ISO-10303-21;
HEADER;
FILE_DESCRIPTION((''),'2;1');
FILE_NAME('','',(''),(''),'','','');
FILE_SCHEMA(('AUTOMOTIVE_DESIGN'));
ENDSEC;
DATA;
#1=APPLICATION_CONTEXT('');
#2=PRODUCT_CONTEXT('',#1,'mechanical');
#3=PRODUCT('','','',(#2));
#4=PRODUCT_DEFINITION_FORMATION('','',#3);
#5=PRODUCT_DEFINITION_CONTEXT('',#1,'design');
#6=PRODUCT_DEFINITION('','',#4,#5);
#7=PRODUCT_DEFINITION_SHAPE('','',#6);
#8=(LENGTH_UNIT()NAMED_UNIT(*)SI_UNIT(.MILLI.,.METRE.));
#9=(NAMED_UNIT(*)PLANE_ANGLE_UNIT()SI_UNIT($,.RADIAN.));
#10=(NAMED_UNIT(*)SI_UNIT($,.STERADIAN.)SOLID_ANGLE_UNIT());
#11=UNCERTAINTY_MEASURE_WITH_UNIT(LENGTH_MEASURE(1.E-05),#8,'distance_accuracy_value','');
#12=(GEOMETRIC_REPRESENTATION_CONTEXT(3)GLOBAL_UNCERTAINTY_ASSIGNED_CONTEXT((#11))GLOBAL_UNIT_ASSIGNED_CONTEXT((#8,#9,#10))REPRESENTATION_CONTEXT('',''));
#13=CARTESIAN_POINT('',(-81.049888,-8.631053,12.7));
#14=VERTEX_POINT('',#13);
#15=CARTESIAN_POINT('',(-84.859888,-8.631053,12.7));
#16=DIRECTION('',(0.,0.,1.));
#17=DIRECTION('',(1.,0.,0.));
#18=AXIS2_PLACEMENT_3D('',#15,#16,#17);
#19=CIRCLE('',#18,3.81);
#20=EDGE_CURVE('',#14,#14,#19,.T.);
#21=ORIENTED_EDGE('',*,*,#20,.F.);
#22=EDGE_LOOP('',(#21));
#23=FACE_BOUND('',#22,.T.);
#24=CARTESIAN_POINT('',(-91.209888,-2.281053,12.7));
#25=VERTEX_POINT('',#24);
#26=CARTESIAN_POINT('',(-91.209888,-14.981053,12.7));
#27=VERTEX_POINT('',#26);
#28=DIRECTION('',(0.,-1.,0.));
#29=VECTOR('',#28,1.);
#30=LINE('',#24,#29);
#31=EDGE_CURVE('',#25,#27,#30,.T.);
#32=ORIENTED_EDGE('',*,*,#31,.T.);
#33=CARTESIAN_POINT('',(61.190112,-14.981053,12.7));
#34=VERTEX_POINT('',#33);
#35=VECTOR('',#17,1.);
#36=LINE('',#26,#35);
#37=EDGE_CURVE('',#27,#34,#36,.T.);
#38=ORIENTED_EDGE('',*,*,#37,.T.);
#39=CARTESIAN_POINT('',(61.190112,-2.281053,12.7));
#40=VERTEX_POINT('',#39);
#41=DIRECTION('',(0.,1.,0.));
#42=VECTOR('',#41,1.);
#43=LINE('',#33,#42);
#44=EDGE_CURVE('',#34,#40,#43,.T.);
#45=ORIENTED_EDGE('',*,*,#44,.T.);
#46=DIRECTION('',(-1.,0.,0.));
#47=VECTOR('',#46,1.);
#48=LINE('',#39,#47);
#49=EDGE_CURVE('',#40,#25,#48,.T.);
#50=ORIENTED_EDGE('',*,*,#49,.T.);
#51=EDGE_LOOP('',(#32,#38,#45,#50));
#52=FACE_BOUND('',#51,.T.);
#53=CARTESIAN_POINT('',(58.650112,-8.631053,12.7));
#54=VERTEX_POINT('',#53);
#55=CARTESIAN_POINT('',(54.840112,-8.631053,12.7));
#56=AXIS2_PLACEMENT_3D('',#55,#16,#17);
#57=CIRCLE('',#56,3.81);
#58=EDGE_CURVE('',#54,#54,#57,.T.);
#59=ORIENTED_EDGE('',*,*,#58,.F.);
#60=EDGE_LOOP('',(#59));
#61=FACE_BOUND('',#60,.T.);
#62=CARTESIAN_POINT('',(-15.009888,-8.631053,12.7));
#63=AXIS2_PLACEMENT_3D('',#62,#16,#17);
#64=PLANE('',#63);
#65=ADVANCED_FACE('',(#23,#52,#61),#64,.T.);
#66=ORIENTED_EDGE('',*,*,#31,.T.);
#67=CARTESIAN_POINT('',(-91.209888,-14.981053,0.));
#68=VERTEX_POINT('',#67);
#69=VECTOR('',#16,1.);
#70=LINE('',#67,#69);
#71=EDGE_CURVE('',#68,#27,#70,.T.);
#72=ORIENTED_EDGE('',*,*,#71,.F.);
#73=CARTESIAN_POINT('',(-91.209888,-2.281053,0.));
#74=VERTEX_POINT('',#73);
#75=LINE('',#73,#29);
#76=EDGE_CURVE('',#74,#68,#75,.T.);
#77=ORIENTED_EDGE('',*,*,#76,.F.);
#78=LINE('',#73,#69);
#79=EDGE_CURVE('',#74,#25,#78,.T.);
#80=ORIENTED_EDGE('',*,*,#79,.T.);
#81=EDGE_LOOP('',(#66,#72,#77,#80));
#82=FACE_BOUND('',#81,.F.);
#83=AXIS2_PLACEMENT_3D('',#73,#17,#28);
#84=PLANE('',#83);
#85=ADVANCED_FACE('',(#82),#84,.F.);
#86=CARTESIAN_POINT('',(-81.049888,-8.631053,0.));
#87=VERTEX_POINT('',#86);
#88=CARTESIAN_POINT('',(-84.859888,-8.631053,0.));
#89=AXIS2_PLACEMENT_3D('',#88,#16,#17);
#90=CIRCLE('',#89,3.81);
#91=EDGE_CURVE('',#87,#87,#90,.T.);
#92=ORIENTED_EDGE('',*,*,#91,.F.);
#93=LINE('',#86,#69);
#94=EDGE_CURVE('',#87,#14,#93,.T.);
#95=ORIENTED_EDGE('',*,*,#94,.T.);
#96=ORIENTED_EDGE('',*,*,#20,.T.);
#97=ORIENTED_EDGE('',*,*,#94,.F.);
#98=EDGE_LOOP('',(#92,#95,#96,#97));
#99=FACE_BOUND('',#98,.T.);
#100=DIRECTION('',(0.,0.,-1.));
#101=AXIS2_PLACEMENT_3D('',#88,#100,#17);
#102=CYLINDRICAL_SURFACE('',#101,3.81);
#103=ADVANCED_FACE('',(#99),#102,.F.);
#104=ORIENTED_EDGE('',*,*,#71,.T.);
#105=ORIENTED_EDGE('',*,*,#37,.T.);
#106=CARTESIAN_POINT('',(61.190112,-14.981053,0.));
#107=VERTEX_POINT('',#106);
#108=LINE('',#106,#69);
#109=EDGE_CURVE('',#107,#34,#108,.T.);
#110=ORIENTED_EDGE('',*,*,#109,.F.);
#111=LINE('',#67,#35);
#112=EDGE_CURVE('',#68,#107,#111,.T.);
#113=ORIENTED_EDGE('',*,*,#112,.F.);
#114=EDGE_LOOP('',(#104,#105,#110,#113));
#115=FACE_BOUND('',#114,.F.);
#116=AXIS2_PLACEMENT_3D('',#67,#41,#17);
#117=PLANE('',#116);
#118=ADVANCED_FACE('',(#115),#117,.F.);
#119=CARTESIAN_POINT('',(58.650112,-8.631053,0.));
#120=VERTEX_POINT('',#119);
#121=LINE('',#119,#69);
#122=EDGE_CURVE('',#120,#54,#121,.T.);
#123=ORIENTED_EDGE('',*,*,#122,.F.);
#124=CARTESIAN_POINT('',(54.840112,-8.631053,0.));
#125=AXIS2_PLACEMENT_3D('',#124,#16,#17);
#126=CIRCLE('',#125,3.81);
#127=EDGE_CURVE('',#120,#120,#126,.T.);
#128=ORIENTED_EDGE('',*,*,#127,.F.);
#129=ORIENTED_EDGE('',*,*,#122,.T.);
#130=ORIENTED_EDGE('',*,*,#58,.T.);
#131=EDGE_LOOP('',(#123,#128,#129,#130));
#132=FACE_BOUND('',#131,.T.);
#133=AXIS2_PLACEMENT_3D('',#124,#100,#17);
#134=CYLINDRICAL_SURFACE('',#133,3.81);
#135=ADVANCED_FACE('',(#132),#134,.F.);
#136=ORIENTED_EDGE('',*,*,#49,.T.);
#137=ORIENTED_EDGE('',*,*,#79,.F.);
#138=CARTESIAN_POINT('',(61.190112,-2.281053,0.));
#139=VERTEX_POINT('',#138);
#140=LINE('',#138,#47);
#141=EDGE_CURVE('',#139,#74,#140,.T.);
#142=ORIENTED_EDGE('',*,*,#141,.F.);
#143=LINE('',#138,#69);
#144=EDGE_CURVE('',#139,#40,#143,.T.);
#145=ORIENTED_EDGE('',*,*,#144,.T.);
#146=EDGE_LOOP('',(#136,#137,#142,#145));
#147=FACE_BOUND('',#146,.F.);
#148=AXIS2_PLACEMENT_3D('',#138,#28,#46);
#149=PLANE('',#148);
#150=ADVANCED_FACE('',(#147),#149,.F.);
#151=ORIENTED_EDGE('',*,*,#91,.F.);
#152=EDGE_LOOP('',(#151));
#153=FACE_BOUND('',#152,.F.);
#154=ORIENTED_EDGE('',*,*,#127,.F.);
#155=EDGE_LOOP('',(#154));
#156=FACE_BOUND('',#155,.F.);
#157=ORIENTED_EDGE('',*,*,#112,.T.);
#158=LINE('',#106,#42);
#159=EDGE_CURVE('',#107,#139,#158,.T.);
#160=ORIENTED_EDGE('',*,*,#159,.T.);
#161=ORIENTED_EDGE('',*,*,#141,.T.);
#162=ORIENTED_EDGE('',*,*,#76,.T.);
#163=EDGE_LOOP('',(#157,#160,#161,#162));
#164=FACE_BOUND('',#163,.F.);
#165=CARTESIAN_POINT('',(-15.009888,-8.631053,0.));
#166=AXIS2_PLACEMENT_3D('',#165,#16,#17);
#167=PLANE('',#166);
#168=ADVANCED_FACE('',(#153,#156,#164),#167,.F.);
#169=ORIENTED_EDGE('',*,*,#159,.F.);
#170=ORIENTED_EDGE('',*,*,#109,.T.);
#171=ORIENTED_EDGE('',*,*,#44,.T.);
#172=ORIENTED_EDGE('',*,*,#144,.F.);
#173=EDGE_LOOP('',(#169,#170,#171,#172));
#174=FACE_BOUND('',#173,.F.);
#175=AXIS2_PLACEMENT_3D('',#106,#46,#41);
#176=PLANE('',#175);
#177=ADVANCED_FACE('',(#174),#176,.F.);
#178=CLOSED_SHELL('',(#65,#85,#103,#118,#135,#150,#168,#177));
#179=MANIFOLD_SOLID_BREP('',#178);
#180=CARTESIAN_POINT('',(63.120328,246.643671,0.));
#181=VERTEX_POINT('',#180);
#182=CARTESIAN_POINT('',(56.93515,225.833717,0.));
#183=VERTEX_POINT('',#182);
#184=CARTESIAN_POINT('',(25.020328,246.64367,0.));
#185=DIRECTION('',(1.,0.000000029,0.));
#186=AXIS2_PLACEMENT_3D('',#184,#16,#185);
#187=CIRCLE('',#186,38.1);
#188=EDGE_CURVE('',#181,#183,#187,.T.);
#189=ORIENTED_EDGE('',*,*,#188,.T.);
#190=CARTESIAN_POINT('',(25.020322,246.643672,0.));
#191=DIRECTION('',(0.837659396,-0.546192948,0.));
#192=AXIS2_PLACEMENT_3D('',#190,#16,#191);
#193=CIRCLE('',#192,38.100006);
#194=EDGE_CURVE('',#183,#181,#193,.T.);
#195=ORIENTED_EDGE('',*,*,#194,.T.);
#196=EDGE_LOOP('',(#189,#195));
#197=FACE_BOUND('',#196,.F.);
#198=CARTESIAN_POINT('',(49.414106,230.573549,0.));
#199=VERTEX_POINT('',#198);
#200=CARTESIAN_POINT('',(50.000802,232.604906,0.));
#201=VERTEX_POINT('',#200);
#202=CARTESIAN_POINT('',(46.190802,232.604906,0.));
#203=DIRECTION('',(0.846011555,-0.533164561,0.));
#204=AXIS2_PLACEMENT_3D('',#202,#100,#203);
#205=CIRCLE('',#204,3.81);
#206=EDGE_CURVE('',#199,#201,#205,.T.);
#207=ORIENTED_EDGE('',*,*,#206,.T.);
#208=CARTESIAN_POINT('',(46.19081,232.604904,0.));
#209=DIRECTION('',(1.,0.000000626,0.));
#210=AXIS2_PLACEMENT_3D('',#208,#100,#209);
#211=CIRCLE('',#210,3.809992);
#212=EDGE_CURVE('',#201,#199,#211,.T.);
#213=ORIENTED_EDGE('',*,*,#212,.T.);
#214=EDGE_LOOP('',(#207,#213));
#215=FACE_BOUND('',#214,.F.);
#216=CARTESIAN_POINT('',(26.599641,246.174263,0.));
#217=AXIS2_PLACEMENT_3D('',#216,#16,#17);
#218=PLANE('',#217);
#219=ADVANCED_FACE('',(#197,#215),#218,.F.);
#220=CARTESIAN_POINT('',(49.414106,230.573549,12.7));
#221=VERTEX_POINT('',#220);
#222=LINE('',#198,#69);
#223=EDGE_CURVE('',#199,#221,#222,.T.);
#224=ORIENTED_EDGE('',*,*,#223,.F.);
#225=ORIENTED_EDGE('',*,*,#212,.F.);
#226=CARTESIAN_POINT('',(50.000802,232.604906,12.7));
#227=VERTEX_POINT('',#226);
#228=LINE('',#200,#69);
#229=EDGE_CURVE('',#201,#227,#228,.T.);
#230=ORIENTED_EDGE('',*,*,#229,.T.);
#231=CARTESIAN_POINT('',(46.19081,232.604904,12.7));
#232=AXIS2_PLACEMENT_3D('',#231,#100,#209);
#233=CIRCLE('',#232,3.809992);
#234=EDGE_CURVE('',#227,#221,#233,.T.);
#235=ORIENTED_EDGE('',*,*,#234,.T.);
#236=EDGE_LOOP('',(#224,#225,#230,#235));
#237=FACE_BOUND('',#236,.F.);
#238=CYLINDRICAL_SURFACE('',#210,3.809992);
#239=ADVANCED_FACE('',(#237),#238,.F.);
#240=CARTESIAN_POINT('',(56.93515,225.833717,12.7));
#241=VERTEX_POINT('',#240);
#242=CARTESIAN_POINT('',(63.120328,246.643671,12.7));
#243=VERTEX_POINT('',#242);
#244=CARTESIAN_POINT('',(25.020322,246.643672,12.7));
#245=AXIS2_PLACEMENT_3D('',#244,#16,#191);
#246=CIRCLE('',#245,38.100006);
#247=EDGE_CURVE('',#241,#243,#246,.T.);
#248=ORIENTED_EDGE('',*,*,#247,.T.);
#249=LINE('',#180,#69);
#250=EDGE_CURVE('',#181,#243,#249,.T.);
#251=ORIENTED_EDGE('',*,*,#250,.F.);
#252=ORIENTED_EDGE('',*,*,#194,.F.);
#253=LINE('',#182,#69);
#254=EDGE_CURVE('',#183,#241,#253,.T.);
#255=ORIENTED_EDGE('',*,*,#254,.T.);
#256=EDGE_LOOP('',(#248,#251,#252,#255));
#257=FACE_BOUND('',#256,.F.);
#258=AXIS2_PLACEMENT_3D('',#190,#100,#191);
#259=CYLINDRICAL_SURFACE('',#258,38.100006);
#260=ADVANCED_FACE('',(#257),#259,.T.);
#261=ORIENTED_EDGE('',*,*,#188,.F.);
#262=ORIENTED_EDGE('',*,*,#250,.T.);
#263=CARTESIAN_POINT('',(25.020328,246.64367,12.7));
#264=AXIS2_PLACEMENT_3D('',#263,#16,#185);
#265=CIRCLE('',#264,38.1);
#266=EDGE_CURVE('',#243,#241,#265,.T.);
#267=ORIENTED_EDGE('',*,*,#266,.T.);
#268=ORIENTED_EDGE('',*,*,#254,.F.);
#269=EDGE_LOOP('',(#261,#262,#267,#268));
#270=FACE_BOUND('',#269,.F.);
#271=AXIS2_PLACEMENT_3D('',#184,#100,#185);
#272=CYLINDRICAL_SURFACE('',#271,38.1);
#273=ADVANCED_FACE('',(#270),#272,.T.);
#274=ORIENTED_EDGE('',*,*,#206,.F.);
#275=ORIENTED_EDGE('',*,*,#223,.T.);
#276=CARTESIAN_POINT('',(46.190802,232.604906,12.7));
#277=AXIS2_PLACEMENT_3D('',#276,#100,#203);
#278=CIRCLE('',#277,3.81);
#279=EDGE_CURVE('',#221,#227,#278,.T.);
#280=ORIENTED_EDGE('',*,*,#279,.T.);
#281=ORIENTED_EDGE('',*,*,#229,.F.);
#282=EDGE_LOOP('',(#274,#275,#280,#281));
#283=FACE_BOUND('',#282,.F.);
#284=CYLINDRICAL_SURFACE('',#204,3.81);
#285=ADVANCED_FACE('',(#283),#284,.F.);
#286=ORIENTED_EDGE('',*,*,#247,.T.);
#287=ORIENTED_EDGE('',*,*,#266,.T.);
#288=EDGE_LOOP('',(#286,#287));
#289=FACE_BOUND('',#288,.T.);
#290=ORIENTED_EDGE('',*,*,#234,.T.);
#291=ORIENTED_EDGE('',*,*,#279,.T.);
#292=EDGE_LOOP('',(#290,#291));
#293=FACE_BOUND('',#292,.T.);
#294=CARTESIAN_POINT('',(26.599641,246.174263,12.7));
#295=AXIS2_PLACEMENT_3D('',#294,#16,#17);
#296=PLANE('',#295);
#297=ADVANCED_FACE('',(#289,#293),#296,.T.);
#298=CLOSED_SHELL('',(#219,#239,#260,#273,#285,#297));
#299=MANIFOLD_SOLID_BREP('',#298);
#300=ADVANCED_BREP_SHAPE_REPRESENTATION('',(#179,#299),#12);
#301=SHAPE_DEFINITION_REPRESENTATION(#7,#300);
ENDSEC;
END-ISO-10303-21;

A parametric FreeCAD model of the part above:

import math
import FreeCAD as App
import Part
import Sketcher
from FreeCAD import Vector
Q = App.Units.Quantity

doc = App.newDocument("Part")
params = doc.addObject("Spreadsheet::Sheet", "Params")
for row, (alias, value) in enumerate([
    ("sketch1_diameter", "0.3 in"),
    ("sketch1_width", "6 in"),
    ("sketch1_height", "0.5 in"),
    ("pad1_length", "0.5 in"),
    ("sketch2_radius", "1.5 in"),
    ("sketch2_radius2", "0.15 in"),
    ("pad2_length", "0.5 in"),
], start=1):
    params.set(f"A{row}", alias)
    params.set(f"B{row}", "=" + value)
    params.setAlias(f"B{row}", alias)

body = doc.addObject("PartDesign::Body", "Body")

# Sketch on XY plane
sketch1 = doc.addObject("Sketcher::SketchObject", "Sketch")
body.addObject(sketch1)
sketch1.AttachmentSupport = (doc.XY_Plane, [""])
sketch1.MapMode = "FlatFace"
sketch1.addGeometry(Part.LineSegment(Vector(-91.209888, -2.281053, 0), Vector(-91.209888, -14.981053, 0)), False)
sketch1.addGeometry(Part.LineSegment(Vector(-91.209888, -14.981053, 0), Vector(61.190112, -14.981053, 0)), False)
sketch1.addGeometry(Part.LineSegment(Vector(61.190112, -14.981053, 0), Vector(61.190112, -2.281053, 0)), False)
sketch1.addGeometry(Part.LineSegment(Vector(61.190112, -2.281053, 0), Vector(-91.209888, -2.281053, 0)), False)
sketch1.addGeometry(Part.Circle(Vector(-84.859888, -8.631053, 0), Vector(0, 0, 1), 3.81), False)
sketch1.addGeometry(Part.Circle(Vector(54.840112, -8.631053, 0), Vector(0, 0, 1), 3.81), False)
sketch1.addConstraint(Sketcher.Constraint("Coincident", 0, 2, 1, 1))
sketch1.addConstraint(Sketcher.Constraint("Coincident", 1, 2, 2, 1))
sketch1.addConstraint(Sketcher.Constraint("Coincident", 2, 2, 3, 1))
sketch1.addConstraint(Sketcher.Constraint("Coincident", 3, 2, 0, 1))
sketch1.addConstraint(Sketcher.Constraint("Vertical", 0))
sketch1.addConstraint(Sketcher.Constraint("Horizontal", 1))
sketch1.addConstraint(Sketcher.Constraint("Vertical", 2))
sketch1.addConstraint(Sketcher.Constraint("Horizontal", 3))
sketch1.addConstraint(Sketcher.Constraint("Equal", 4, 5))
sketch1.addConstraint(Sketcher.Constraint("Horizontal", 4, 3, 5, 3))
sketch1.addConstraint(Sketcher.Constraint("Diameter", 4, Q("0.3 in")))
sketch1.addConstraint(Sketcher.Constraint("DistanceX", 1, 1, 1, 2, Q("6 in")))
sketch1.addConstraint(Sketcher.Constraint("DistanceY", 0, 2, 0, 1, Q("0.5 in")))
sketch1.addConstraint(Sketcher.Constraint("DistanceX", 4, 3, 5, 3, Q("5.5 in")))
sketch1.addConstraint(Sketcher.Constraint("DistanceX", 0, 2, 4, 3, Q("0.25 in")))
sketch1.addConstraint(Sketcher.Constraint("DistanceY", 0, 2, 4, 3, Q("0.25 in")))
sketch1.addConstraint(Sketcher.Constraint("DistanceX", 4, 3, -1, 1, 84.859888))
sketch1.addConstraint(Sketcher.Constraint("DistanceY", 4, 3, -1, 1, 8.631053))
sketch1.setExpression("Constraints[10]", "Params.sketch1_diameter")
sketch1.setExpression("Constraints[11]", "Params.sketch1_width")
sketch1.setExpression("Constraints[12]", "Params.sketch1_height")
pad1 = doc.addObject("PartDesign::Pad", "Pad")
body.addObject(pad1)
pad1.Profile = sketch1
pad1.setExpression("Length", "Params.pad1_length")
body2 = doc.addObject("PartDesign::Body", "Body001")

# Sketch on XY plane
sketch2 = doc.addObject("Sketcher::SketchObject", "Sketch001")
body2.addObject(sketch2)
sketch2.AttachmentSupport = (doc.getObject("XY_Plane001"), [""])
sketch2.MapMode = "FlatFace"
sketch2.addGeometry(Part.ArcOfCircle(Part.Circle(Vector(25.020322, 246.643672, 0), Vector(0, 0, 1), 38.100006), math.radians(-33.106223), math.radians(-0.000001)), False)
sketch2.addGeometry(Part.ArcOfCircle(Part.Circle(Vector(25.020328, 246.64367, 0), Vector(0, 0, 1), 38.1), math.radians(0.000002), math.radians(326.893774)), False)
sketch2.addGeometry(Part.ArcOfCircle(Part.Circle(Vector(46.190802, 232.604906, 0), Vector(0, 0, 1), 3.81), math.radians(-0.000001), math.radians(327.780478)), False)
sketch2.addGeometry(Part.ArcOfCircle(Part.Circle(Vector(46.19081, 232.604904, 0), Vector(0, 0, 1), 3.809992), math.radians(-32.219559), math.radians(0.000036)), False)
sketch2.addConstraint(Sketcher.Constraint("Tangent", 0, 1, 1, 2))
sketch2.addConstraint(Sketcher.Constraint("Coincident", 1, 1, 0, 2))
sketch2.addConstraint(Sketcher.Constraint("Tangent", 2, 1, 3, 2))
sketch2.addConstraint(Sketcher.Constraint("Coincident", 3, 1, 2, 2))
sketch2.addConstraint(Sketcher.Constraint("Horizontal", 0, 3, 1, 1))
sketch2.addConstraint(Sketcher.Constraint("Radius", 1, Q("1.5 in")))
sketch2.addConstraint(Sketcher.Constraint("Radius", 2, Q("0.15 in")))
sketch2.addConstraint(Sketcher.Constraint("DistanceX", -1, 1, 2, 3, 46.190802))
sketch2.addConstraint(Sketcher.Constraint("DistanceX", -1, 1, 0, 3, 25.020322))
sketch2.addConstraint(Sketcher.Constraint("DistanceY", -1, 1, 0, 3, 246.643672))
sketch2.addConstraint(Sketcher.Constraint("DistanceX", -1, 1, 0, 1, 56.93515))
sketch2.addConstraint(Sketcher.Constraint("DistanceY", -1, 1, 3, 1, 230.573549))
sketch2.addConstraint(Sketcher.Constraint("DistanceY", 3, 3, 0, 3, 14.038768))
sketch2.addConstraint(Sketcher.Constraint("DistanceY", 0, 1, 2, 1, 6.771189))
sketch2.setExpression("Constraints[5]", "Params.sketch2_radius")
sketch2.setExpression("Constraints[6]", "Params.sketch2_radius2")
pad2 = doc.addObject("PartDesign::Pad", "Pad001")
body2.addObject(pad2)
pad2.Profile = sketch2
pad2.setExpression("Length", "Params.pad2_length")

doc.recompute()
